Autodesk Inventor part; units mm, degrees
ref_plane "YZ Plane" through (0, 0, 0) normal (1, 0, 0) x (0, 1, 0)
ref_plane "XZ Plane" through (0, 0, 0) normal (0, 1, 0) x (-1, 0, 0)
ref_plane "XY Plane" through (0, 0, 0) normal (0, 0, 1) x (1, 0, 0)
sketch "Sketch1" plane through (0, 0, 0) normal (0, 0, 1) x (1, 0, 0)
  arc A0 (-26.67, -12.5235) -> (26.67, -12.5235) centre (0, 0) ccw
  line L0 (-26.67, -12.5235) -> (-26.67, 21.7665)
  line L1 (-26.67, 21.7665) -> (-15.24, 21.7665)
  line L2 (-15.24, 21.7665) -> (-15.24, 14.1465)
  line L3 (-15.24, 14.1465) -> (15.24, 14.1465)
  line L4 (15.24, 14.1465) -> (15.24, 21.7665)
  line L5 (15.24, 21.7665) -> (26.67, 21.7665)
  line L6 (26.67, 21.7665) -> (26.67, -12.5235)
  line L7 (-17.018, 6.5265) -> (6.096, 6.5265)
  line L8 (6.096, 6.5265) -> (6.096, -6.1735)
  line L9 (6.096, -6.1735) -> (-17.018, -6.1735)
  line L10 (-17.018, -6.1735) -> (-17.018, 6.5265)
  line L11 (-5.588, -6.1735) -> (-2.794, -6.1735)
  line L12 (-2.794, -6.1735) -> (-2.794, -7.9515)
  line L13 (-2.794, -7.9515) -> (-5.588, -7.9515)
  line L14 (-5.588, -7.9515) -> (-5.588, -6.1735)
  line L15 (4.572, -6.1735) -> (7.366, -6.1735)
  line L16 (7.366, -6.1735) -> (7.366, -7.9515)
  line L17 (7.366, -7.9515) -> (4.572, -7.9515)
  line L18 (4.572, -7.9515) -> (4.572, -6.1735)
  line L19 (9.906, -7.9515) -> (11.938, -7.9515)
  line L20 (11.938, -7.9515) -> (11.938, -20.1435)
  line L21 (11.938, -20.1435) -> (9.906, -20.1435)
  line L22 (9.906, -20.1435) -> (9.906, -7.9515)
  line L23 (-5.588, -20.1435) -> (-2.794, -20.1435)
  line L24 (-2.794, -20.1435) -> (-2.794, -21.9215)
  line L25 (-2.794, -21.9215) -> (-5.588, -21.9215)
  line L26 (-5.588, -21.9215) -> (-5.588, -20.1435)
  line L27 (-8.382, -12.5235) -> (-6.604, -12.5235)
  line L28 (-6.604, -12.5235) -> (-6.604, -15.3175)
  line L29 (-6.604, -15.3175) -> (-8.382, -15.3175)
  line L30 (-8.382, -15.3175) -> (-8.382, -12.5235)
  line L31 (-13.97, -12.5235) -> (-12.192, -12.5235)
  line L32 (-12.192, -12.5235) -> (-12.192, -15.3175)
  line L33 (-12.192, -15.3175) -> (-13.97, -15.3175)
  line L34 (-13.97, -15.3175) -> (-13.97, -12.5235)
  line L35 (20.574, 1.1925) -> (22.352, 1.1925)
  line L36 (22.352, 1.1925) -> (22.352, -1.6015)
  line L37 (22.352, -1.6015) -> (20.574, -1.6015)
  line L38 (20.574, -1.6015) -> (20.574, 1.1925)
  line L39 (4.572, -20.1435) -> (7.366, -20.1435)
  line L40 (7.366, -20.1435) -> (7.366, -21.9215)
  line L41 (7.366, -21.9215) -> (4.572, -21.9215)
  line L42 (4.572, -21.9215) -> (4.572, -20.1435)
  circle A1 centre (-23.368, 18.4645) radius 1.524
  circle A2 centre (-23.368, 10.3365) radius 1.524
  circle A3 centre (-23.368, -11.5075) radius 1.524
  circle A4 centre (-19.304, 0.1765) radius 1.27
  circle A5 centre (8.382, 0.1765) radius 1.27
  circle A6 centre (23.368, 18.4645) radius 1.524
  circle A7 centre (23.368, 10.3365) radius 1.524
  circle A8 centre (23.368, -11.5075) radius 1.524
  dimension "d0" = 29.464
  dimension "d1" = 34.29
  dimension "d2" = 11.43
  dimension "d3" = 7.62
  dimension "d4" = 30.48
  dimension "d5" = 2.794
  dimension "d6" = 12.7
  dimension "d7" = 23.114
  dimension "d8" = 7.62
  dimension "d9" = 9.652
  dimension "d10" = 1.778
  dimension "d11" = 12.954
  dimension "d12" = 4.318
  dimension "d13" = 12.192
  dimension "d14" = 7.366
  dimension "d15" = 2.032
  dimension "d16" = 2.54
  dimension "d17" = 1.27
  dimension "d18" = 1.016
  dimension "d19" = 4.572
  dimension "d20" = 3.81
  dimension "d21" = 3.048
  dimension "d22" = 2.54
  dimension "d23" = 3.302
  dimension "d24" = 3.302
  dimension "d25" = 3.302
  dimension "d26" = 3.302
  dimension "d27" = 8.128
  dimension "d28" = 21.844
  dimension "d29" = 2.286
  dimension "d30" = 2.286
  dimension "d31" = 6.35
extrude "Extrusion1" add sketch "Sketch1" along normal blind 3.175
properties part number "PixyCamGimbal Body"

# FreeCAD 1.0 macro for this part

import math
import FreeCAD as App
import Part
import Sketcher

V = App.Vector
Q = App.Units.Quantity

doc = App.newDocument("Part")
body = doc.addObject("PartDesign::Body", "Body")

# Sketch on XY plane
sketch1 = body.newObject("Sketcher::SketchObject", "Sketch")
sketch1.AttachmentSupport = (doc.getObject("XY_Plane"), [""])
sketch1.MapMode = "FlatFace"
sketch1.addGeometry(Part.LineSegment(V(-26.7, 21.8, 0), V(-26.7, -12.5, 0)), False)
sketch1.addGeometry(Part.ArcOfCircle(Part.Circle(V(0, 0, 0), V(0, 0, 1), 29.5), math.radians(-155), math.radians(-25)), False)
sketch1.addGeometry(Part.LineSegment(V(26.7, -12.5, 0), V(26.7, 21.8, 0)), False)
sketch1.addGeometry(Part.LineSegment(V(26.7, 21.8, 0), V(15.2, 21.8, 0)), False)
sketch1.addGeometry(Part.LineSegment(V(15.2, 21.8, 0), V(15.2, 14.1, 0)), False)
sketch1.addGeometry(Part.LineSegment(V(15.2, 14.1, 0), V(-15.2, 14.1, 0)), False)
sketch1.addGeometry(Part.LineSegment(V(-15.2, 14.1, 0), V(-15.2, 21.8, 0)), False)
sketch1.addGeometry(Part.LineSegment(V(-15.2, 21.8, 0), V(-26.7, 21.8, 0)), False)
sketch1.addGeometry(Part.LineSegment(V(-5.6, -21.9, 0), V(-5.6, -20.1, 0)), False)
sketch1.addGeometry(Part.LineSegment(V(-5.6, -20.1, 0), V(-2.8, -20.1, 0)), False)
sketch1.addGeometry(Part.LineSegment(V(-2.8, -20.1, 0), V(-2.8, -21.9, 0)), False)
sketch1.addGeometry(Part.LineSegment(V(-2.8, -21.9, 0), V(-5.6, -21.9, 0)), False)
sketch1.addGeometry(Part.Circle(V(-23.4, -11.5, 0), V(0, 0, 1), 1.5), False)
sketch1.addGeometry(Part.LineSegment(V(-14, -15.3, 0), V(-14, -12.5, 0)), False)
sketch1.addGeometry(Part.LineSegment(V(-14, -12.5, 0), V(-12.2, -12.5, 0)), False)
sketch1.addGeometry(Part.LineSegment(V(-12.2, -12.5, 0), V(-12.2, -15.3, 0)), False)
sketch1.addGeometry(Part.LineSegment(V(-12.2, -15.3, 0), V(-14, -15.3, 0)), False)
sketch1.addGeometry(Part.LineSegment(V(-8.4, -15.3, 0), V(-8.4, -12.5, 0)), False)
sketch1.addGeometry(Part.LineSegment(V(-8.4, -12.5, 0), V(-6.6, -12.5, 0)), False)
sketch1.addGeometry(Part.LineSegment(V(-6.6, -12.5, 0), V(-6.6, -15.3, 0)), False)
sketch1.addGeometry(Part.LineSegment(V(-6.6, -15.3, 0), V(-8.4, -15.3, 0)), False)
sketch1.addGeometry(Part.LineSegment(V(4.6, -21.9, 0), V(4.6, -20.1, 0)), False)
sketch1.addGeometry(Part.LineSegment(V(4.6, -20.1, 0), V(7.4, -20.1, 0)), False)
sketch1.addGeometry(Part.LineSegment(V(7.4, -20.1, 0), V(7.4, -21.9, 0)), False)
sketch1.addGeometry(Part.LineSegment(V(7.4, -21.9, 0), V(4.6, -21.9, 0)), False)
sketch1.addGeometry(Part.LineSegment(V(9.9, -20.1, 0), V(9.9, -8, 0)), False)
sketch1.addGeometry(Part.LineSegment(V(9.9, -8, 0), V(11.9, -8, 0)), False)
sketch1.addGeometry(Part.LineSegment(V(11.9, -8, 0), V(11.9, -20.1, 0)), False)
sketch1.addGeometry(Part.LineSegment(V(11.9, -20.1, 0), V(9.9, -20.1, 0)), False)
sketch1.addGeometry(Part.Circle(V(23.4, -11.5, 0), V(0, 0, 1), 1.5), False)
sketch1.addGeometry(Part.Circle(V(-19.3, 0.2, 0), V(0, 0, 1), 1.3), False)
sketch1.addGeometry(Part.LineSegment(V(-17, -6.2, 0), V(-17, 6.5, 0)), False)
sketch1.addGeometry(Part.LineSegment(V(-17, 6.5, 0), V(6.1, 6.5, 0)), False)
sketch1.addGeometry(Part.LineSegment(V(6.1, 6.5, 0), V(6.1, -6.2, 0)), False)
sketch1.addGeometry(Part.LineSegment(V(6.1, -6.2, 0), V(7.4, -6.2, 0)), False)
sketch1.addGeometry(Part.LineSegment(V(7.4, -6.2, 0), V(7.4, -8, 0)), False)
sketch1.addGeometry(Part.LineSegment(V(7.4, -8, 0), V(4.6, -8, 0)), False)
sketch1.addGeometry(Part.LineSegment(V(4.6, -8, 0), V(4.6, -6.2, 0)), False)
sketch1.addGeometry(Part.LineSegment(V(4.6, -6.2, 0), V(-2.8, -6.2, 0)), False)
sketch1.addGeometry(Part.LineSegment(V(-2.8, -6.2, 0), V(-2.8, -8, 0)), False)
sketch1.addGeometry(Part.LineSegment(V(-2.8, -8, 0), V(-5.6, -8, 0)), False)
sketch1.addGeometry(Part.LineSegment(V(-5.6, -8, 0), V(-5.6, -6.2, 0)), False)
sketch1.addGeometry(Part.LineSegment(V(-5.6, -6.2, 0), V(-17, -6.2, 0)), False)
sketch1.addGeometry(Part.Circle(V(-23.4, 10.3, 0), V(0, 0, 1), 1.5), False)
sketch1.addGeometry(Part.Circle(V(-23.4, 18.5, 0), V(0, 0, 1), 1.5), False)
sketch1.addGeometry(Part.Circle(V(8.4, 0.2, 0), V(0, 0, 1), 1.3), False)
sketch1.addGeometry(Part.LineSegment(V(20.6, -1.6, 0), V(20.6, 1.2, 0)), False)
sketch1.addGeometry(Part.LineSegment(V(20.6, 1.2, 0), V(22.4, 1.2, 0)), False)
sketch1.addGeometry(Part.LineSegment(V(22.4, 1.2, 0), V(22.4, -1.6, 0)), False)
sketch1.addGeometry(Part.LineSegment(V(22.4, -1.6, 0), V(20.6, -1.6, 0)), False)
sketch1.addGeometry(Part.Circle(V(23.4, 10.3, 0), V(0, 0, 1), 1.5), False)
sketch1.addGeometry(Part.Circle(V(23.4, 18.5, 0), V(0, 0, 1), 1.5), False)
sketch1.addConstraint(Sketcher.Constraint("Coincident", 0, 2, 1, 1))
sketch1.addConstraint(Sketcher.Constraint("Coincident", 1, 2, 2, 1))
sketch1.addConstraint(Sketcher.Constraint("Coincident", 2, 2, 3, 1))
sketch1.addConstraint(Sketcher.Constraint("Coincident", 3, 2, 4, 1))
sketch1.addConstraint(Sketcher.Constraint("Coincident", 4, 2, 5, 1))
sketch1.addConstraint(Sketcher.Constraint("Coincident", 5, 2, 6, 1))
sketch1.addConstraint(Sketcher.Constraint("Coincident", 6, 2, 7, 1))
sketch1.addConstraint(Sketcher.Constraint("Coincident", 7, 2, 0, 1))
sketch1.addConstraint(Sketcher.Constraint("Coincident", 8, 2, 9, 1))
sketch1.addConstraint(Sketcher.Constraint("Coincident", 9, 2, 10, 1))
sketch1.addConstraint(Sketcher.Constraint("Coincident", 10, 2, 11, 1))
sketch1.addConstraint(Sketcher.Constraint("Coincident", 11, 2, 8, 1))
sketch1.addConstraint(Sketcher.Constraint("Coincident", 13, 2, 14, 1))
sketch1.addConstraint(Sketcher.Constraint("Coincident", 14, 2, 15, 1))
sketch1.addConstraint(Sketcher.Constraint("Coincident", 15, 2, 16, 1))
sketch1.addConstraint(Sketcher.Constraint("Coincident", 16, 2, 13, 1))
sketch1.addConstraint(Sketcher.Constraint("Coincident", 17, 2, 18, 1))
sketch1.addConstraint(Sketcher.Constraint("Coincident", 18, 2, 19, 1))
sketch1.addConstraint(Sketcher.Constraint("Coincident", 19, 2, 20, 1))
sketch1.addConstraint(Sketcher.Constraint("Coincident", 20, 2, 17, 1))
sketch1.addConstraint(Sketcher.Constraint("Coincident", 21, 2, 22, 1))
sketch1.addConstraint(Sketcher.Constraint("Coincident", 22, 2, 23, 1))
sketch1.addConstraint(Sketcher.Constraint("Coincident", 23, 2, 24, 1))
sketch1.addConstraint(Sketcher.Constraint("Coincident", 24, 2, 21, 1))
sketch1.addConstraint(Sketcher.Constraint("Coincident", 25, 2, 26, 1))
sketch1.addConstraint(Sketcher.Constraint("Coincident", 26, 2, 27, 1))
sketch1.addConstraint(Sketcher.Constraint("Coincident", 27, 2, 28, 1))
sketch1.addConstraint(Sketcher.Constraint("Coincident", 28, 2, 25, 1))
sketch1.addConstraint(Sketcher.Constraint("Coincident", 31, 2, 32, 1))
sketch1.addConstraint(Sketcher.Constraint("Coincident", 32, 2, 33, 1))
sketch1.addConstraint(Sketcher.Constraint("Coincident", 33, 2, 34, 1))
sketch1.addConstraint(Sketcher.Constraint("Coincident", 34, 2, 35, 1))
sketch1.addConstraint(Sketcher.Constraint("Coincident", 35, 2, 36, 1))
sketch1.addConstraint(Sketcher.Constraint("Coincident", 36, 2, 37, 1))
sketch1.addConstraint(Sketcher.Constraint("Coincident", 37, 2, 38, 1))
sketch1.addConstraint(Sketcher.Constraint("Coincident", 38, 2, 39, 1))
sketch1.addConstraint(Sketcher.Constraint("Coincident", 39, 2, 40, 1))
sketch1.addConstraint(Sketcher.Constraint("Coincident", 40, 2, 41, 1))
sketch1.addConstraint(Sketcher.Constraint("Coincident", 41, 2, 42, 1))
sketch1.addConstraint(Sketcher.Constraint("Coincident", 42, 2, 31, 1))
sketch1.addConstraint(Sketcher.Constraint("Coincident", 46, 2, 47, 1))
sketch1.addConstraint(Sketcher.Constraint("Coincident", 47, 2, 48, 1))
sketch1.addConstraint(Sketcher.Constraint("Coincident", 48, 2, 49, 1))
sketch1.addConstraint(Sketcher.Constraint("Coincident", 49, 2, 46, 1))
sketch1.addConstraint(Sketcher.Constraint("Vertical", 0))
sketch1.addConstraint(Sketcher.Constraint("Vertical", 2))
sketch1.addConstraint(Sketcher.Constraint("Horizontal", 3))
sketch1.addConstraint(Sketcher.Constraint("Vertical", 4))
sketch1.addConstraint(Sketcher.Constraint("Horizontal", 5))
sketch1.addConstraint(Sketcher.Constraint("Vertical", 6))
sketch1.addConstraint(Sketcher.Constraint("Horizontal", 7))
sketch1.addConstraint(Sketcher.Constraint("Vertical", 8))
sketch1.addConstraint(Sketcher.Constraint("Horizontal", 9))
sketch1.addConstraint(Sketcher.Constraint("Vertical", 10))
sketch1.addConstraint(Sketcher.Constraint("Horizontal", 11))
sketch1.addConstraint(Sketcher.Constraint("Vertical", 13))
sketch1.addConstraint(Sketcher.Constraint("Horizontal", 14))
sketch1.addConstraint(Sketcher.Constraint("Vertical", 15))
sketch1.addConstraint(Sketcher.Constraint("Horizontal", 16))
sketch1.addConstraint(Sketcher.Constraint("Vertical", 17))
sketch1.addConstraint(Sketcher.Constraint("Horizontal", 18))
sketch1.addConstraint(Sketcher.Constraint("Vertical", 19))
sketch1.addConstraint(Sketcher.Constraint("Horizontal", 20))
sketch1.addConstraint(Sketcher.Constraint("Vertical", 21))
sketch1.addConstraint(Sketcher.Constraint("Horizontal", 22))
sketch1.addConstraint(Sketcher.Constraint("Vertical", 23))
sketch1.addConstraint(Sketcher.Constraint("Horizontal", 24))
sketch1.addConstraint(Sketcher.Constraint("Vertical", 25))
sketch1.addConstraint(Sketcher.Constraint("Horizontal", 26))
sketch1.addConstraint(Sketcher.Constraint("Vertical", 27))
sketch1.addConstraint(Sketcher.Constraint("Horizontal", 28))
sketch1.addConstraint(Sketcher.Constraint("Vertical", 31))
sketch1.addConstraint(Sketcher.Constraint("Horizontal", 32))
sketch1.addConstraint(Sketcher.Constraint("Vertical", 33))
sketch1.addConstraint(Sketcher.Constraint("Horizontal", 34))
sketch1.addConstraint(Sketcher.Constraint("Vertical", 35))
sketch1.addConstraint(Sketcher.Constraint("Horizontal", 36))
sketch1.addConstraint(Sketcher.Constraint("Vertical", 37))
sketch1.addConstraint(Sketcher.Constraint("Horizontal", 38))
sketch1.addConstraint(Sketcher.Constraint("Vertical", 39))
sketch1.addConstraint(Sketcher.Constraint("Horizontal", 40))
sketch1.addConstraint(Sketcher.Constraint("Vertical", 41))
sketch1.addConstraint(Sketcher.Constraint("Horizontal", 42))
sketch1.addConstraint(Sketcher.Constraint("Vertical", 46))
sketch1.addConstraint(Sketcher.Constraint("Horizontal", 47))
sketch1.addConstraint(Sketcher.Constraint("Vertical", 48))
sketch1.addConstraint(Sketcher.Constraint("Horizontal", 49))
sketch1.addConstraint(Sketcher.Constraint("Coincident", 1, 3, -1, 1))
sketch1.addConstraint(Sketcher.Constraint("Equal", 12, 29))
sketch1.addConstraint(Sketcher.Constraint("Equal", 29, 43))
sketch1.addConstraint(Sketcher.Constraint("Equal", 43, 44))
sketch1.addConstraint(Sketcher.Constraint("Equal", 30, 45))
sketch1.addConstraint(Sketcher.Constraint("Equal", 44, 50))
sketch1.addConstraint(Sketcher.Constraint("Equal", 50, 51))
sketch1.addConstraint(Sketcher.Constraint("Symmetric", 12, 3, 29, 3, -2))
sketch1.addConstraint(Sketcher.Constraint("Symmetric", 43, 3, 50, 3, -2))
sketch1.addConstraint(Sketcher.Constraint("Symmetric", 44, 3, 51, 3, -2))
sketch1.addConstraint(Sketcher.Constraint("Symmetric", 3, 2, 6, 2, -2))
sketch1.addConstraint(Sketcher.Constraint("Horizontal", 30, 3, 45, 3))
sketch1.addConstraint(Sketcher.Constraint("Horizontal", 0, 2, 1, 2))
sketch1.addConstraint(Sketcher.Constraint("Horizontal", 1, 2, 13, 2))
sketch1.addConstraint(Sketcher.Constraint("Horizontal", 14, 2, 17, 2))
sketch1.addConstraint(Sketcher.Constraint("Horizontal", 16, 2, 19, 2))
sketch1.addConstraint(Sketcher.Constraint("Horizontal", 9, 2, 21, 2))
sketch1.addConstraint(Sketcher.Constraint("Horizontal", 11, 2, 23, 2))
sketch1.addConstraint(Sketcher.Constraint("Horizontal", 22, 2, 27, 2))
sketch1.addConstraint(Sketcher.Constraint("Horizontal", 26, 2, 35, 2))
sketch1.addConstraint(Sketcher.Constraint("Horizontal", 34, 2, 37, 2))
sketch1.addConstraint(Sketcher.Constraint("Horizontal", 36, 2, 39, 2))
sketch1.addConstraint(Sketcher.Constraint("Horizontal", 38, 2, 41, 2))
sketch1.addConstraint(Sketcher.Constraint("Vertical", 12, 3, 43, 3))
sketch1.addConstraint(Sketcher.Constraint("Vertical", 43, 3, 44, 3))
sketch1.addConstraint(Sketcher.Constraint("Vertical", 23, 2, 34, 2))
sketch1.addConstraint(Sketcher.Constraint("Vertical", 24, 2, 36, 2))
sketch1.addConstraint(Sketcher.Constraint("Vertical", 10, 2, 38, 2))
sketch1.addConstraint(Sketcher.Constraint("Vertical", 11, 2, 40, 2))
sketch1.addConstraint(Sketcher.Constraint("Equal", 16, 18))
sketch1.addConstraint(Sketcher.Constraint("Equal", 11, 22))
sketch1.addConstraint(Sketcher.Constraint("Equal", 7, 42))
sketch1.addConstraint(Sketcher.Constraint("Equal", 20, 47))
sketch1.addConstraint(Sketcher.Constraint("Equal", 49, 8))
sketch1.addConstraint(Sketcher.Constraint("Equal", 40, 13))
sketch1.addConstraint(Sketcher.Constraint("Equal", 23, 35))
sketch1.addConstraint(Sketcher.Constraint("Equal", 19, 46))
sketch1.addConstraint(Sketcher.Constraint("Diameter", 30, Q("0.1 in")))
sketch1.addConstraint(Sketcher.Constraint("Diameter", 12, Q("0.12 in")))
sketch1.addConstraint(Sketcher.Constraint("Radius", 1, Q("1.16 in")))
sketch1.addConstraint(Sketcher.Constraint("DistanceX", 5, 2, 5, 1, Q("1.2 in")))
sketch1.addConstraint(Sketcher.Constraint("DistanceY", 4, 2, 4, 1, Q("0.3 in")))
sketch1.addConstraint(Sketcher.Constraint("DistanceY", 31, 1, 31, 2, Q("0.5 in")))
sketch1.addConstraint(Sketcher.Constraint("DistanceX", 3, 2, 3, 1, Q("0.45 in")))
sketch1.addConstraint(Sketcher.Constraint("DistanceX", 9, 1, 9, 2, Q("0.11 in")))
sketch1.addConstraint(Sketcher.Constraint("DistanceX", 14, 1, 14, 2, Q("0.07 in")))
sketch1.addConstraint(Sketcher.Constraint("DistanceX", 26, 1, 26, 2, Q("0.08 in")))
sketch1.addConstraint(Sketcher.Constraint("DistanceX", 32, 1, 32, 2, Q("0.91 in")))
sketch1.addConstraint(Sketcher.Constraint("DistanceX", 34, 1, 34, 2, Q("0.05 in")))
sketch1.addConstraint(Sketcher.Constraint("DistanceY", 0, 2, 0, 1, Q("1.35 in")))
sketch1.addConstraint(Sketcher.Constraint("DistanceY", 25, 1, 25, 2, Q("0.48 in")))
sketch1.addConstraint(Sketcher.Constraint("DistanceY", 0, 2, 30, 3, Q("0.5 in")))
sketch1.addConstraint(Sketcher.Constraint("DistanceY", 8, 2, 0, 2, Q("0.3 in")))
sketch1.addConstraint(Sketcher.Constraint("DistanceX", 0, 2, 13, 2, Q("0.5 in")))
sketch1.addConstraint(Sketcher.Constraint("DistanceX", 22, 2, 25, 2, Q("0.1 in")))
sketch1.addConstraint(Sketcher.Constraint("DistanceY", 29, 3, 46, 2, Q("0.5 in")))
sketch1.addConstraint(Sketcher.Constraint("DistanceX", 9, 2, -1, 1, Q("0.11 in")))
sketch1.addConstraint(Sketcher.Constraint("DistanceY", 12, 3, 43, 3, Q("0.86 in")))
sketch1.addConstraint(Sketcher.Constraint("DistanceY", 43, 3, 44, 3, Q("0.32 in")))
sketch1.addConstraint(Sketcher.Constraint("DistanceX", 0, 2, 12, 3, Q("0.13 in")))
sketch1.addConstraint(Sketcher.Constraint("DistanceY", 0, 2, 12, 3, Q("0.04 in")))
sketch1.addConstraint(Sketcher.Constraint("DistanceX", 0, 2, 30, 3, Q("0.29 in")))
sketch1.addConstraint(Sketcher.Constraint("DistanceX", 14, 2, 17, 2, Q("0.15 in")))
sketch1.addConstraint(Sketcher.Constraint("DistanceX", 32, 2, 45, 3, Q("0.09 in")))
sketch1.addConstraint(Sketcher.Constraint("DistanceX", 46, 2, 50, 3, Q("0.11 in")))
pad1 = body.newObject("PartDesign::Pad", "Pad")
pad1.Profile = sketch1
pad1.Length = Q("0.125 in")

doc.recompute()
